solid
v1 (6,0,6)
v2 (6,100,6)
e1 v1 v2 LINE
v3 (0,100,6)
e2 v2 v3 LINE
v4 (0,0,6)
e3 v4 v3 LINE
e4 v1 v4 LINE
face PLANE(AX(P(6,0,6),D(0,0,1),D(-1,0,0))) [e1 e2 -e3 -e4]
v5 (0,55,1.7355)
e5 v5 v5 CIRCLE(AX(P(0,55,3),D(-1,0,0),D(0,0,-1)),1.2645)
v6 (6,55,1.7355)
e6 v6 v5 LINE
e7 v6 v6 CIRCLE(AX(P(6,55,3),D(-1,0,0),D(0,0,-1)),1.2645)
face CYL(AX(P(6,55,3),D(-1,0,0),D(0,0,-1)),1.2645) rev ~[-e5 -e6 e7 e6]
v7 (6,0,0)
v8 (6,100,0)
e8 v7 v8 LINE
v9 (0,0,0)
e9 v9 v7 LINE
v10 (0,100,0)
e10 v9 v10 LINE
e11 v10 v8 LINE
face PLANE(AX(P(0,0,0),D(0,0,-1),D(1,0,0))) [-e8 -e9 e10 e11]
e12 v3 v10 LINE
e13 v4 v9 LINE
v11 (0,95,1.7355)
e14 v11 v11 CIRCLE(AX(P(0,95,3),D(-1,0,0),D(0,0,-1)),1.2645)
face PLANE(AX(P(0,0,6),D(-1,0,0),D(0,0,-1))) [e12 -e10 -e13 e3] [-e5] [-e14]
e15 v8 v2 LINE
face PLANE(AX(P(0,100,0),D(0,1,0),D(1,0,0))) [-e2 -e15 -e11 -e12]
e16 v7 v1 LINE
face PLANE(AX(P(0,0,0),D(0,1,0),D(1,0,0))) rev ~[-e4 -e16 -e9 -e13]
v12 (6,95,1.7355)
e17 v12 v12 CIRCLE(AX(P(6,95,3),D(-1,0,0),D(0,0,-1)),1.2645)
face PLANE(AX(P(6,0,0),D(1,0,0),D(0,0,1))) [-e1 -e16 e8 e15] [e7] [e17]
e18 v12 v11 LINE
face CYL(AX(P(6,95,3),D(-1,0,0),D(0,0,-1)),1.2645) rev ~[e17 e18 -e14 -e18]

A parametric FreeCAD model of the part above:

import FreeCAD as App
import Part
import Sketcher
from FreeCAD import Vector

doc = App.newDocument("Part")
params = doc.addObject("Spreadsheet::Sheet", "Params")
for row, (alias, value) in enumerate([
    ("sketch1_width", "6 mm"),
    ("pad1_length", "100 mm"),
    ("hole_diameter", "2.529 mm"),
    ("hole_depth", "30 mm"),
], start=1):
    params.set(f"A{row}", alias)
    params.set(f"B{row}", "=" + value)
    params.setAlias(f"B{row}", alias)

body = doc.addObject("PartDesign::Body", "Body")

sketch1 = body.newObject("Sketcher::SketchObject", "Sketch")
sketch1.AttachmentSupport = (doc.getObject("XZ_Plane"), [""])
sketch1.MapMode = "FlatFace"
sketch1.addGeometry([
    Part.LineSegment(Vector(6, 0, 0), Vector(0, 0, 0)),
    Part.LineSegment(Vector(0, 0, 0), Vector(0, 6, 0)),
    Part.LineSegment(Vector(0, 6, 0), Vector(6, 6, 0)),
    Part.LineSegment(Vector(6, 6, 0), Vector(6, 0, 0)),
], False)
sketch1.addConstraint([
    Sketcher.Constraint("Coincident", 0, 2, 1, 1),
    Sketcher.Constraint("Coincident", 1, 2, 2, 1),
    Sketcher.Constraint("Coincident", 2, 2, 3, 1),
    Sketcher.Constraint("Coincident", 3, 2, 0, 1),
    Sketcher.Constraint("Horizontal", 0),
    Sketcher.Constraint("Vertical", 1),
    Sketcher.Constraint("Horizontal", 2),
    Sketcher.Constraint("Vertical", 3),
    Sketcher.Constraint("Coincident", 0, 2, -1, 1),
    Sketcher.Constraint("Equal", 2, 1),
    Sketcher.Constraint("DistanceX", 0, 2, 0, 1, 6.0),
])
sketch1.setExpression("Constraints[10]", "Params.sketch1_width")
pad1 = body.newObject("PartDesign::Pad", "Pad")
pad1.Profile = sketch1
pad1.setExpression("Length", "Params.pad1_length")
pad1.Reversed = True

sketch2 = body.newObject("Sketcher::SketchObject", "Sketch001")
sketch2.AttachmentSupport = (doc.getObject("YZ_Plane"), [""])
sketch2.MapMode = "FlatFace"
sketch2.AttachmentOffset = App.Placement(Vector(0, 0, 6), App.Rotation())
sketch2.addGeometry([
    Part.Circle(Vector(95, 3, 0), Vector(0, 0, 1), 1.2645),
    Part.Circle(Vector(55, 3, 0), Vector(0, 0, 1), 1.2645),
], False)
sketch2.addConstraint([
    Sketcher.Constraint("Equal", 0, 1),
    Sketcher.Constraint("Horizontal", 0, 3, 1, 3),
    Sketcher.Constraint("Diameter", 0, 2.529),
    Sketcher.Constraint("DistanceX", -1, 1, 0, 3, 95.0),
    Sketcher.Constraint("DistanceY", -1, 1, 0, 3, 3.0),
    Sketcher.Constraint("DistanceX", -1, 1, 1, 3, 55.0),
])
doc.recompute()
hole = body.newObject("PartDesign::Hole", "Hole")
hole.Profile = sketch2
hole.ThreadType = "None"
hole.setExpression("Diameter", "Params.hole_diameter")
hole.DepthType = "Dimension"
hole.setExpression("Depth", "Params.hole_depth")
hole.DrillPoint = "Angled"
hole.DrillPointAngle = 118

doc.recompute()
